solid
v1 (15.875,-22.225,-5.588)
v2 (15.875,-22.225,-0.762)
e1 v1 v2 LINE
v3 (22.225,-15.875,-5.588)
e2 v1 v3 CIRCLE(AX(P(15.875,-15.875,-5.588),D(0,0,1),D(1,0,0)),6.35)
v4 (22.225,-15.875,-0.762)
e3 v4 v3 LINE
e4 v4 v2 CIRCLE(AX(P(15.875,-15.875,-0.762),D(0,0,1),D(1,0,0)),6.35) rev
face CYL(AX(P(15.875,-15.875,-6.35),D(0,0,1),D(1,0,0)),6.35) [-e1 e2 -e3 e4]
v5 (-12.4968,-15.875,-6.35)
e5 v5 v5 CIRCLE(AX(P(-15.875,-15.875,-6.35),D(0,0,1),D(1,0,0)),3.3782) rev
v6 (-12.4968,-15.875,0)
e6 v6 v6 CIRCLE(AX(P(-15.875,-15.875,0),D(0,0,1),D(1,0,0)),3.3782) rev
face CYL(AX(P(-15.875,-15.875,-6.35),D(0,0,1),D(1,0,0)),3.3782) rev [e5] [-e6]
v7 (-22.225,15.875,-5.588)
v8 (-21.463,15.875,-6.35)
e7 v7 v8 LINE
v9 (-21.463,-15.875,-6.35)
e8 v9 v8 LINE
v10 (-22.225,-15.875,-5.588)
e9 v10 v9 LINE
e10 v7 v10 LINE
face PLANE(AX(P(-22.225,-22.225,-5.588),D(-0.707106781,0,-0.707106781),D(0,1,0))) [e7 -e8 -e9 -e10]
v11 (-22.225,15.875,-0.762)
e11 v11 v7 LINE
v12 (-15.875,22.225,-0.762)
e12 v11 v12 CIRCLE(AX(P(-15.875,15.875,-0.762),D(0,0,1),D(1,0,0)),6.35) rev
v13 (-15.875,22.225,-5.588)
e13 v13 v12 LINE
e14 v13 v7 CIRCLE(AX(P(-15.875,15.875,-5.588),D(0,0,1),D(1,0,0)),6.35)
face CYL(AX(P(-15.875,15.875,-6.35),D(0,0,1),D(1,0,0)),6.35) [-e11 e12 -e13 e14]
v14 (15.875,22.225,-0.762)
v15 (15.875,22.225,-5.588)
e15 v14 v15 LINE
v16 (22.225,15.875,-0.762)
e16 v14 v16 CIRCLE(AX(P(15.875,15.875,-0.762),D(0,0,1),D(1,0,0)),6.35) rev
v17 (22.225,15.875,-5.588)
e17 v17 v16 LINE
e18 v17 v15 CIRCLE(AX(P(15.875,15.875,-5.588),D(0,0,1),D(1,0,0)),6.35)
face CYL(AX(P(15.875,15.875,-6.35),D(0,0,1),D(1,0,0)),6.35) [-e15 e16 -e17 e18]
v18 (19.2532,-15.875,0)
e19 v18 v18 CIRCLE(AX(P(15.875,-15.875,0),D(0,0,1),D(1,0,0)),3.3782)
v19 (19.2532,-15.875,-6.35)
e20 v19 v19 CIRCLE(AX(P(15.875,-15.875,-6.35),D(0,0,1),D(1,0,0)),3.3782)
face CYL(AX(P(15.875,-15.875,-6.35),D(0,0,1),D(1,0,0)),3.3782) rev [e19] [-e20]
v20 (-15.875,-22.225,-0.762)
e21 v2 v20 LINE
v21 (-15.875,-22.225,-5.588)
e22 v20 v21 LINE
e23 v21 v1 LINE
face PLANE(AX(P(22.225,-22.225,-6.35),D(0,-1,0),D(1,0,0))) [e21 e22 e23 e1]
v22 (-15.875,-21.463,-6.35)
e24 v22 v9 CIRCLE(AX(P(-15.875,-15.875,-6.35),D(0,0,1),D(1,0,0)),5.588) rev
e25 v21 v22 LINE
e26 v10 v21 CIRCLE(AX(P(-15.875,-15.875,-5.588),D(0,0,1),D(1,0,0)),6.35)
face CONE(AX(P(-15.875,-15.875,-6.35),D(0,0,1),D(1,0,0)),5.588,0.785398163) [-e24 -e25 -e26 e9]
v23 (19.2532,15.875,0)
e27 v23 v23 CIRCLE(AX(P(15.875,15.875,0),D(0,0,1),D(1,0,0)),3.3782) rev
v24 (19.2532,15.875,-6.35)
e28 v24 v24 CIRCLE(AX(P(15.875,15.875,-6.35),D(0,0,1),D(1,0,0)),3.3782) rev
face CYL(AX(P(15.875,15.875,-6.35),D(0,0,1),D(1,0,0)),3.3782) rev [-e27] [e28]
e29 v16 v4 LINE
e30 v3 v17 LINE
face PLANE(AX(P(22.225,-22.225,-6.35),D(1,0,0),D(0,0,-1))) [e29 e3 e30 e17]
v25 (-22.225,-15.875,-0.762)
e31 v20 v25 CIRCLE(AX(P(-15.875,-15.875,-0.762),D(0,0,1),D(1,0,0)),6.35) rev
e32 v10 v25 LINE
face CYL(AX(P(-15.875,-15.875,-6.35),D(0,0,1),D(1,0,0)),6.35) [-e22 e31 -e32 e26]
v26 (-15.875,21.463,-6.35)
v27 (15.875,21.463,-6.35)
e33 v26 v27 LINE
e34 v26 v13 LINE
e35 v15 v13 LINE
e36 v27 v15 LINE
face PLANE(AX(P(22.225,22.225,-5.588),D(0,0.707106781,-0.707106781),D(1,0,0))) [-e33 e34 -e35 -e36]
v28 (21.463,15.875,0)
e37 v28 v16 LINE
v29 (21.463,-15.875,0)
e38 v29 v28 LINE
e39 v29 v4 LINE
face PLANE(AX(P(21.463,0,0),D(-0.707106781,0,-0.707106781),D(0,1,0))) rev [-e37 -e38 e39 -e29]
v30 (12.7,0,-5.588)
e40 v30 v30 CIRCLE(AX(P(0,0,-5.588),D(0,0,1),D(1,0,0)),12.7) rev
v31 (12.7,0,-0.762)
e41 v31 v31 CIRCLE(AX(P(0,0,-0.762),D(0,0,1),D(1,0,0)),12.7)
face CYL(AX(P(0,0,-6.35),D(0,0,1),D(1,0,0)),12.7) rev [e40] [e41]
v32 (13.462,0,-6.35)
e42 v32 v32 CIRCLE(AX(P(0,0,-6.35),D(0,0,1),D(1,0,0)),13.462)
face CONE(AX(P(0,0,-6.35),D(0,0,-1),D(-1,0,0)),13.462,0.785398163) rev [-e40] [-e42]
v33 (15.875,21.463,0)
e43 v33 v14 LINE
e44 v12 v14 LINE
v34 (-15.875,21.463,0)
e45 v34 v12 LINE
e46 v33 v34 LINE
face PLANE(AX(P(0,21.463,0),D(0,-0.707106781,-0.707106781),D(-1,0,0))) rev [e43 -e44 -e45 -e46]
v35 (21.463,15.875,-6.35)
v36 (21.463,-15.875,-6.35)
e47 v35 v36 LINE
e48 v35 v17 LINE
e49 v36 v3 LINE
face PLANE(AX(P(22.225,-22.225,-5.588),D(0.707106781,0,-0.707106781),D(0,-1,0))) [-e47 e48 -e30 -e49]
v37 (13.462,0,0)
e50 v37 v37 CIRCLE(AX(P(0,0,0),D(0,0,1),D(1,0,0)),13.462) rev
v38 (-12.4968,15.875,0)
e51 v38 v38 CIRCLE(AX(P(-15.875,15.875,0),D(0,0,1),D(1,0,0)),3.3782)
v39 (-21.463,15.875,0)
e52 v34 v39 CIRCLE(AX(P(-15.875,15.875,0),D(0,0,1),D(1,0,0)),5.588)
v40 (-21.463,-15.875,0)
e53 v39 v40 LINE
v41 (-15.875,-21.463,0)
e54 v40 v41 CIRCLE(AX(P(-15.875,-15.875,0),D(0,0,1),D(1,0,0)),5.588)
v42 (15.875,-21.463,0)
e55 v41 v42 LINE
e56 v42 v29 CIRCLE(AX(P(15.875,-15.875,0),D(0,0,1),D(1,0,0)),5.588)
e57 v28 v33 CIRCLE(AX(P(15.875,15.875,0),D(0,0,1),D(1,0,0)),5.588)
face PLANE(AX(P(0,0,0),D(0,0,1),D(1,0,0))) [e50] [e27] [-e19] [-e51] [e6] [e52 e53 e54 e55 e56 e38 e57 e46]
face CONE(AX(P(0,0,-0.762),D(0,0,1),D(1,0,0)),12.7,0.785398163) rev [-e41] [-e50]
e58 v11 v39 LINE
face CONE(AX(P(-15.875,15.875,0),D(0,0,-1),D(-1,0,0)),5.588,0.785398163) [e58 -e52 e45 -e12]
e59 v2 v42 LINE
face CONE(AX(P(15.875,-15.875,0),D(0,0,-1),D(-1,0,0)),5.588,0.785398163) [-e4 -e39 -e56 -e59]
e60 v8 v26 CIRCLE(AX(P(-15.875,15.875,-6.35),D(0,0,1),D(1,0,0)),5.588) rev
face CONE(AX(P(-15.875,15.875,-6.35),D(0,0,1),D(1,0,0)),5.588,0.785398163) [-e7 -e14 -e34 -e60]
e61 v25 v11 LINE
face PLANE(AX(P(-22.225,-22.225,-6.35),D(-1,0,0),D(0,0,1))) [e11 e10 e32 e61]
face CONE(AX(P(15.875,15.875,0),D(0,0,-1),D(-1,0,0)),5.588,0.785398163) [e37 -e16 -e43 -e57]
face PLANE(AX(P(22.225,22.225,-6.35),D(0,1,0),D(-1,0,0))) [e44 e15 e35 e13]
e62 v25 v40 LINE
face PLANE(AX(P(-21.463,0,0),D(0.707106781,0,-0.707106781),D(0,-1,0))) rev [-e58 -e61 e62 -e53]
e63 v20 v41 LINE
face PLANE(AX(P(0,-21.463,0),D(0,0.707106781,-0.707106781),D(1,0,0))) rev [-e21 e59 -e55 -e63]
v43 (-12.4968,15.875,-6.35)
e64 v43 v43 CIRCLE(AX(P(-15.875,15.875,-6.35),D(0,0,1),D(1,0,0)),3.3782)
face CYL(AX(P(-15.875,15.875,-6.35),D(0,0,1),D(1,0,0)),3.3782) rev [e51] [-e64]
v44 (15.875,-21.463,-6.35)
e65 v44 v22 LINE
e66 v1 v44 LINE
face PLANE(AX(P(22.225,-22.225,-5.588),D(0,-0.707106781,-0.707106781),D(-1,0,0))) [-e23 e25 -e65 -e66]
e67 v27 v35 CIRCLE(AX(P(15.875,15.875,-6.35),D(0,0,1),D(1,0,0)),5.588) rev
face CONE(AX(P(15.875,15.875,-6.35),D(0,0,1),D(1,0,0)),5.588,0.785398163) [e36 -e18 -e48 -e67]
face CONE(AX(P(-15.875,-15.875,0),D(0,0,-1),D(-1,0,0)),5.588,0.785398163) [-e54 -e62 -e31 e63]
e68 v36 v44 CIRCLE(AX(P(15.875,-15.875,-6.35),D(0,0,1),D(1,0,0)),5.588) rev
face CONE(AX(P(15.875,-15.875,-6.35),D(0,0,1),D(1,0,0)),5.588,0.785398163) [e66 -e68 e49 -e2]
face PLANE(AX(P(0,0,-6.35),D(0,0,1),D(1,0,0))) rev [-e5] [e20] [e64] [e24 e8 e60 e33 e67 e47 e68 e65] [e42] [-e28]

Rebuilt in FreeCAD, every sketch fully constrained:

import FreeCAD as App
import Part
import Sketcher
from FreeCAD import Vector
Q = App.Units.Quantity


def edges_at(feature, points):
    """Names of the edges that pass closest to the given points."""
    edges = feature.Shape.Edges
    near = lambda p: min(range(len(edges)), key=lambda i: edges[i].distToShape(Part.Vertex(*p))[0])
    return sorted({f"Edge{near(p) + 1}" for p in points})


def add_polygon(sketch, points):
    """Adds a closed chain of lines whose ends are joined by coincident constraints."""
    first, n = sketch.GeometryCount, len(points)
    for a, b in zip(points, points[1:] + points[:1]):
        sketch.addGeometry(Part.LineSegment(App.Vector(*a, 0), App.Vector(*b, 0)), False)
    for i in range(n):
        sketch.addConstraint(Sketcher.Constraint("Coincident", first + i, 2, first + (i + 1) % n, 1))

doc = App.newDocument("Part")
body = doc.addObject("PartDesign::Body", "Body")

sketch1 = doc.addObject("Sketcher::SketchObject", "Sketch")
body.addObject(sketch1)
sketch1.AttachmentSupport = (doc.XY_Plane, [""])
sketch1.MapMode = "FlatFace"
add_polygon(sketch1, [(-22, 22), (-22, -22), (22, -22), (22, 22)])
sketch1.addGeometry(Part.Circle(Vector(0, 0, 0), Vector(0, 0, 1), 13), False)
sketch1.addConstraint([
    Sketcher.Constraint("Vertical", 0),
    Sketcher.Constraint("Horizontal", 1),
    Sketcher.Constraint("Vertical", 2),
    Sketcher.Constraint("Horizontal", 3),
    Sketcher.Constraint("Coincident", 4, 3, -1, 1),
    Sketcher.Constraint("Symmetric", 0, 2, 2, 2, -1, 1),
    Sketcher.Constraint("Equal", 3, 0),
    Sketcher.Constraint("Diameter", 4, Q("1 in")),
    Sketcher.Constraint("DistanceX", 1, 1, 1, 2, Q("1.75 in")),
])
pad1 = doc.addObject("PartDesign::Pad", "Pad")
body.addObject(pad1)
pad1.Profile = sketch1
pad1.Length = Q("0.25 in")
pad1.Reversed = True
doc.recompute()

fillet = doc.addObject("PartDesign::Fillet", "Fillet")
body.addObject(fillet)
fillet.Base = (pad1, edges_at(pad1, [
    (-22.225, 22.225, -3.175),
    (22.225, 22.225, -3.175),
    (22.225, -22.225, -3.175),
    (-22.225, -22.225, -3.175),
]))
fillet.Radius = Q("0.25 in")
doc.recompute()

chamfer = doc.addObject("PartDesign::Chamfer", "Chamfer")
body.addObject(chamfer)
chamfer.Base = (fillet, edges_at(fillet, [
    (-12.7, 0, -6.35),
    (-12.7, 0, 0),
    (-22.225, 0, 0),
    (-22.225, 0, -6.35),
    (0, -22.225, 0),
    (22.225, 0, 0),
    (0, 22.225, 0),
    (20.365, 20.365, 0),
    (20.365, -20.365, 0),
    (-20.365, 20.365, 0),
    (-20.365, -20.365, 0),
    (0, -22.225, -6.35),
    (0, 22.225, -6.35),
    (22.225, 0, -6.35),
    (20.365, 20.365, -6.35),
    (20.365, -20.365, -6.35),
    (-20.365, 20.365, -6.35),
    (-20.365, -20.365, -6.35),
]))
chamfer.Size = Q("0.03 in")

sketch2 = doc.addObject("Sketcher::SketchObject", "Sketch001")
body.addObject(sketch2)
sketch2.AttachmentSupport = (doc.XY_Plane, [""])
sketch2.MapMode = "FlatFace"
sketch2.addGeometry([
    Part.Circle(Vector(15.9, 15.9, 0), Vector(0, 0, 1), 3.4),
    Part.Circle(Vector(15.9, -15.9, 0), Vector(0, 0, 1), 3.4),
    Part.Circle(Vector(-15.9, -15.9, 0), Vector(0, 0, 1), 3.4),
    Part.Circle(Vector(-15.9, 15.9, 0), Vector(0, 0, 1), 3.4),
], False)
sketch2.addConstraint([
    Sketcher.Constraint("Equal", 0, 1),
    Sketcher.Constraint("Equal", 1, 2),
    Sketcher.Constraint("Equal", 2, 3),
    Sketcher.Constraint("Symmetric", 0, 3, 2, 3, -1, 1),
    Sketcher.Constraint("Symmetric", 1, 3, 3, 3, -1, 1),
    Sketcher.Constraint("Symmetric", 1, 3, 2, 3, -2),
    Sketcher.Constraint("Diameter", 0, Q("0.266 in")),
    Sketcher.Constraint("DistanceY", 1, 3, 0, 3, Q("1.25 in")),
    Sketcher.Constraint("DistanceX", 2, 3, 1, 3, Q("1.25 in")),
])
pocket1 = doc.addObject("PartDesign::Pocket", "Pocket")
body.addObject(pocket1)
pocket1.Profile = sketch2
pocket1.Type = "ThroughAll"

doc.recompute()
